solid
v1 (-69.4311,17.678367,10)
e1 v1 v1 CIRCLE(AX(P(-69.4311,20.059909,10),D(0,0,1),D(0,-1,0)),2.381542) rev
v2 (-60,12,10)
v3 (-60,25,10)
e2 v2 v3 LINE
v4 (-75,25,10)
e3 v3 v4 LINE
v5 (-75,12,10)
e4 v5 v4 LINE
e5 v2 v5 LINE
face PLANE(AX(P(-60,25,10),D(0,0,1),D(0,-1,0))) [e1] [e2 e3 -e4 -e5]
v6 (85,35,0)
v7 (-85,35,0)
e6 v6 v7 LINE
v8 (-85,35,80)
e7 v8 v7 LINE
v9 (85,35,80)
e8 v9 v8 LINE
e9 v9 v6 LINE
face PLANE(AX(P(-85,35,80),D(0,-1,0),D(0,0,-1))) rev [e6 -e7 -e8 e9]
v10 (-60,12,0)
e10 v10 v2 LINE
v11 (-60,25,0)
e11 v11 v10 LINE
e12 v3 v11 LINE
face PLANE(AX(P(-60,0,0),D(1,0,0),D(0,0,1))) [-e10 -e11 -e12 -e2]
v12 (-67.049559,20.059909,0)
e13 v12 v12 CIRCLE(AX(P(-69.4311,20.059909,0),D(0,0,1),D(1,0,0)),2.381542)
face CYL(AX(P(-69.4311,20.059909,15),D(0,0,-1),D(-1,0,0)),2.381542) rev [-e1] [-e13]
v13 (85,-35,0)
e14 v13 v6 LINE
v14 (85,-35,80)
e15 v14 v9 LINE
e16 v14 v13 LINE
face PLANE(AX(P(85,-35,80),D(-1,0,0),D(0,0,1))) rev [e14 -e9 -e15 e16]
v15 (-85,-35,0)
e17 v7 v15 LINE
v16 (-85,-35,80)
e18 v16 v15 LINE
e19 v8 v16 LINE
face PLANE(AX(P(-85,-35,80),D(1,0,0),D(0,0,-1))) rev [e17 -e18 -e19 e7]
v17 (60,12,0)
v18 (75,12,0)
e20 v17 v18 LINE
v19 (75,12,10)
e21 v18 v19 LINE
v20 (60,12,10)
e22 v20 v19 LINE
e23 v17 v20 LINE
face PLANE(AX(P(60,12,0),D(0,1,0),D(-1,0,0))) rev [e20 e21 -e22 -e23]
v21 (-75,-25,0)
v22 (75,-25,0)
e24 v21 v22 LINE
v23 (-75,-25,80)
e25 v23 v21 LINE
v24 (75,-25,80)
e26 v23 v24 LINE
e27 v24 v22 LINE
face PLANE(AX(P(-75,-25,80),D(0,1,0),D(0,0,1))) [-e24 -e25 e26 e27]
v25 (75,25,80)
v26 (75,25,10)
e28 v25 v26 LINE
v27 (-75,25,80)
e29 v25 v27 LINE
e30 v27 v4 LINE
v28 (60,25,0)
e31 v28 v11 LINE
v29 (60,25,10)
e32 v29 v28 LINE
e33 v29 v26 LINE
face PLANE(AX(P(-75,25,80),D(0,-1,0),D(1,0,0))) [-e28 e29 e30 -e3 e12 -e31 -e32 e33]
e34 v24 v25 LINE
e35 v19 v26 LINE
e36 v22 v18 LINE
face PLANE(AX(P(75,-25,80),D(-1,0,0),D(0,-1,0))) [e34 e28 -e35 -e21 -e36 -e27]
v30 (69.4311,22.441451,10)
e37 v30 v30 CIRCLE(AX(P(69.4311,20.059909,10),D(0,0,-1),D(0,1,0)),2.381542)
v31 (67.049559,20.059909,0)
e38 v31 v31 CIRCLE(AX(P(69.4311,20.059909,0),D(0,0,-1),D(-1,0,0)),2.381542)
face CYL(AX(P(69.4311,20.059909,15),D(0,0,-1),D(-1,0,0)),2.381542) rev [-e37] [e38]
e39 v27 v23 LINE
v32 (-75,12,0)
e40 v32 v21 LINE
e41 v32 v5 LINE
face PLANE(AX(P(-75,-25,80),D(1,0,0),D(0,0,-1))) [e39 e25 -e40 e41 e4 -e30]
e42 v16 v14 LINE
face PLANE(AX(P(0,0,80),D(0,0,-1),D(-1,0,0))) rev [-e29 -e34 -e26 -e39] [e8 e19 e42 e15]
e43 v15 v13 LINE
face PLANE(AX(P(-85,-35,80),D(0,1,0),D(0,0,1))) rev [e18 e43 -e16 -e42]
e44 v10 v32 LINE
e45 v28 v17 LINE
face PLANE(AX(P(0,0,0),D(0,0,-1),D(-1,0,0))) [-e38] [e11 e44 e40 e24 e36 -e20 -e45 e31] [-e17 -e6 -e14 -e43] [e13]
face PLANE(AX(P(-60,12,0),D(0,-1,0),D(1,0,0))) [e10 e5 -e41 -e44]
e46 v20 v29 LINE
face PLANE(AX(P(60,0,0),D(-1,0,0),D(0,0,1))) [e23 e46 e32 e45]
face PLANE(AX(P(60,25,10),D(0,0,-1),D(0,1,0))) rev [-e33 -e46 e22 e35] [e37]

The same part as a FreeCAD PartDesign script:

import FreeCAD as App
import Part
import Sketcher

doc = App.newDocument("Part")
params = doc.addObject("Spreadsheet::Sheet", "Params")
for row, (alias, value) in enumerate([
    ("sketch1_width", "170 mm"),
    ("sketch1_width2", "150 mm"),
    ("sketch1_height", "70 mm"),
    ("sketch1_height2", "50 mm"),
    ("pad1_length", "80 mm"),
    ("sketch2_width", "13 mm"),
    ("sketch2_height", "10 mm"),
    ("pad2_length", "15 mm"),
    ("pocket1_length", "15 mm"),
], start=1):
    params.set(f"A{row}", alias)
    params.set(f"B{row}", "=" + value)
    params.setAlias(f"B{row}", alias)

body = doc.addObject("PartDesign::Body", "Body")

# Sketch on XY plane
sketch1 = body.newObject("Sketcher::SketchObject", "Sketch")
sketch1.AttachmentSupport = (doc.getObject("XY_Plane"), [""])
sketch1.MapMode = "FlatFace"
sketch1.addGeometry(Part.LineSegment(App.Vector(-85, 35, 0), App.Vector(-85, -35, 0)), False)
sketch1.addGeometry(Part.LineSegment(App.Vector(-85, -35, 0), App.Vector(85, -35, 0)), False)
sketch1.addGeometry(Part.LineSegment(App.Vector(85, -35, 0), App.Vector(85, 35, 0)), False)
sketch1.addGeometry(Part.LineSegment(App.Vector(85, 35, 0), App.Vector(-85, 35, 0)), False)
sketch1.addGeometry(Part.LineSegment(App.Vector(75, -25, 0), App.Vector(-75, -25, 0)), False)
sketch1.addGeometry(Part.LineSegment(App.Vector(-75, -25, 0), App.Vector(-75, 25, 0)), False)
sketch1.addGeometry(Part.LineSegment(App.Vector(-75, 25, 0), App.Vector(75, 25, 0)), False)
sketch1.addGeometry(Part.LineSegment(App.Vector(75, 25, 0), App.Vector(75, -25, 0)), False)
sketch1.addConstraint(Sketcher.Constraint("Coincident", 0, 2, 1, 1))
sketch1.addConstraint(Sketcher.Constraint("Coincident", 1, 2, 2, 1))
sketch1.addConstraint(Sketcher.Constraint("Coincident", 2, 2, 3, 1))
sketch1.addConstraint(Sketcher.Constraint("Coincident", 3, 2, 0, 1))
sketch1.addConstraint(Sketcher.Constraint("Coincident", 4, 2, 5, 1))
sketch1.addConstraint(Sketcher.Constraint("Coincident", 5, 2, 6, 1))
sketch1.addConstraint(Sketcher.Constraint("Coincident", 6, 2, 7, 1))
sketch1.addConstraint(Sketcher.Constraint("Coincident", 7, 2, 4, 1))
sketch1.addConstraint(Sketcher.Constraint("Vertical", 0))
sketch1.addConstraint(Sketcher.Constraint("Horizontal", 1))
sketch1.addConstraint(Sketcher.Constraint("Vertical", 2))
sketch1.addConstraint(Sketcher.Constraint("Horizontal", 3))
sketch1.addConstraint(Sketcher.Constraint("Horizontal", 4))
sketch1.addConstraint(Sketcher.Constraint("Vertical", 5))
sketch1.addConstraint(Sketcher.Constraint("Horizontal", 6))
sketch1.addConstraint(Sketcher.Constraint("Vertical", 7))
sketch1.addConstraint(Sketcher.Constraint("Symmetric", 0, 2, 2, 2, -1, 1))
sketch1.addConstraint(Sketcher.Constraint("Symmetric", 4, 2, 6, 2, -1, 1))
sketch1.addConstraint(Sketcher.Constraint("DistanceX", 1, 1, 1, 2, 170.0))
sketch1.addConstraint(Sketcher.Constraint("DistanceX", 4, 2, 4, 1, 150.0))
sketch1.addConstraint(Sketcher.Constraint("DistanceY", 0, 2, 0, 1, 70.0))
sketch1.addConstraint(Sketcher.Constraint("DistanceY", 5, 1, 5, 2, 50.0))
sketch1.setExpression("Constraints[18]", "Params.sketch1_width")
sketch1.setExpression("Constraints[19]", "Params.sketch1_width2")
sketch1.setExpression("Constraints[20]", "Params.sketch1_height")
sketch1.setExpression("Constraints[21]", "Params.sketch1_height2")
pad1 = body.newObject("PartDesign::Pad", "Pad")
pad1.Profile = sketch1
pad1.setExpression("Length", "Params.pad1_length")

# Sketch on YZ plane
sketch2 = body.newObject("Sketcher::SketchObject", "Sketch001")
sketch2.AttachmentSupport = (doc.getObject("YZ_Plane"), [""])
sketch2.MapMode = "FlatFace"
sketch2.AttachmentOffset = App.Placement(App.Vector(0, 0, 75), App.Rotation())
sketch2.addGeometry(Part.LineSegment(App.Vector(25, 0, 0), App.Vector(12, 0, 0)), False)
sketch2.addGeometry(Part.LineSegment(App.Vector(12, 0, 0), App.Vector(12, 10, 0)), False)
sketch2.addGeometry(Part.LineSegment(App.Vector(12, 10, 0), App.Vector(25, 10, 0)), False)
sketch2.addGeometry(Part.LineSegment(App.Vector(25, 10, 0), App.Vector(25, 0, 0)), False)
sketch2.addConstraint(Sketcher.Constraint("Coincident", 0, 2, 1, 1))
sketch2.addConstraint(Sketcher.Constraint("Coincident", 1, 2, 2, 1))
sketch2.addConstraint(Sketcher.Constraint("Coincident", 2, 2, 3, 1))
sketch2.addConstraint(Sketcher.Constraint("Coincident", 3, 2, 0, 1))
sketch2.addConstraint(Sketcher.Constraint("Horizontal", 0))
sketch2.addConstraint(Sketcher.Constraint("Vertical", 1))
sketch2.addConstraint(Sketcher.Constraint("Horizontal", 2))
sketch2.addConstraint(Sketcher.Constraint("Vertical", 3))
sketch2.addConstraint(Sketcher.Constraint("PointOnObject", 0, 2, -1))
sketch2.addConstraint(Sketcher.Constraint("DistanceX", 0, 2, 0, 1, 13.0))
sketch2.addConstraint(Sketcher.Constraint("DistanceY", 1, 1, 1, 2, 10.0))
sketch2.addConstraint(Sketcher.Constraint("DistanceX", -1, 1, 0, 2, 12.0))
sketch2.setExpression("Constraints[9]", "Params.sketch2_width")
sketch2.setExpression("Constraints[10]", "Params.sketch2_height")
pad2 = body.newObject("PartDesign::Pad", "Pad001")
pad2.Profile = sketch2
pad2.setExpression("Length", "Params.pad2_length")
pad2.Reversed = True

# Sketch on XY plane
sketch3 = body.newObject("Sketcher::SketchObject", "Sketch002")
sketch3.AttachmentSupport = (doc.getObject("XY_Plane"), [""])
sketch3.MapMode = "FlatFace"
sketch3.addGeometry(Part.Circle(App.Vector(69.4, 20.1, 0), App.Vector(0, 0, 1), 2.4), False)
sketch3.addConstraint(Sketcher.Constraint("Diameter", 0, 4.763083))
sketch3.addConstraint(Sketcher.Constraint("DistanceX", -1, 1, 0, 3, 69.4311))
sketch3.addConstraint(Sketcher.Constraint("DistanceY", -1, 1, 0, 3, 20.059909))
pocket1 = body.newObject("PartDesign::Pocket", "Pocket")
pocket1.Profile = sketch3
pocket1.setExpression("Length", "Params.pocket1_length")
pocket1.Reversed = True
doc.recompute()

mirrored = body.newObject("PartDesign::Mirrored", "Mirrored")
mirrored.Originals = [pad2, pocket1]
mirrored.MirrorPlane = (doc.getObject("YZ_Plane"), [""])
body.Tip = mirrored

doc.recompute()
